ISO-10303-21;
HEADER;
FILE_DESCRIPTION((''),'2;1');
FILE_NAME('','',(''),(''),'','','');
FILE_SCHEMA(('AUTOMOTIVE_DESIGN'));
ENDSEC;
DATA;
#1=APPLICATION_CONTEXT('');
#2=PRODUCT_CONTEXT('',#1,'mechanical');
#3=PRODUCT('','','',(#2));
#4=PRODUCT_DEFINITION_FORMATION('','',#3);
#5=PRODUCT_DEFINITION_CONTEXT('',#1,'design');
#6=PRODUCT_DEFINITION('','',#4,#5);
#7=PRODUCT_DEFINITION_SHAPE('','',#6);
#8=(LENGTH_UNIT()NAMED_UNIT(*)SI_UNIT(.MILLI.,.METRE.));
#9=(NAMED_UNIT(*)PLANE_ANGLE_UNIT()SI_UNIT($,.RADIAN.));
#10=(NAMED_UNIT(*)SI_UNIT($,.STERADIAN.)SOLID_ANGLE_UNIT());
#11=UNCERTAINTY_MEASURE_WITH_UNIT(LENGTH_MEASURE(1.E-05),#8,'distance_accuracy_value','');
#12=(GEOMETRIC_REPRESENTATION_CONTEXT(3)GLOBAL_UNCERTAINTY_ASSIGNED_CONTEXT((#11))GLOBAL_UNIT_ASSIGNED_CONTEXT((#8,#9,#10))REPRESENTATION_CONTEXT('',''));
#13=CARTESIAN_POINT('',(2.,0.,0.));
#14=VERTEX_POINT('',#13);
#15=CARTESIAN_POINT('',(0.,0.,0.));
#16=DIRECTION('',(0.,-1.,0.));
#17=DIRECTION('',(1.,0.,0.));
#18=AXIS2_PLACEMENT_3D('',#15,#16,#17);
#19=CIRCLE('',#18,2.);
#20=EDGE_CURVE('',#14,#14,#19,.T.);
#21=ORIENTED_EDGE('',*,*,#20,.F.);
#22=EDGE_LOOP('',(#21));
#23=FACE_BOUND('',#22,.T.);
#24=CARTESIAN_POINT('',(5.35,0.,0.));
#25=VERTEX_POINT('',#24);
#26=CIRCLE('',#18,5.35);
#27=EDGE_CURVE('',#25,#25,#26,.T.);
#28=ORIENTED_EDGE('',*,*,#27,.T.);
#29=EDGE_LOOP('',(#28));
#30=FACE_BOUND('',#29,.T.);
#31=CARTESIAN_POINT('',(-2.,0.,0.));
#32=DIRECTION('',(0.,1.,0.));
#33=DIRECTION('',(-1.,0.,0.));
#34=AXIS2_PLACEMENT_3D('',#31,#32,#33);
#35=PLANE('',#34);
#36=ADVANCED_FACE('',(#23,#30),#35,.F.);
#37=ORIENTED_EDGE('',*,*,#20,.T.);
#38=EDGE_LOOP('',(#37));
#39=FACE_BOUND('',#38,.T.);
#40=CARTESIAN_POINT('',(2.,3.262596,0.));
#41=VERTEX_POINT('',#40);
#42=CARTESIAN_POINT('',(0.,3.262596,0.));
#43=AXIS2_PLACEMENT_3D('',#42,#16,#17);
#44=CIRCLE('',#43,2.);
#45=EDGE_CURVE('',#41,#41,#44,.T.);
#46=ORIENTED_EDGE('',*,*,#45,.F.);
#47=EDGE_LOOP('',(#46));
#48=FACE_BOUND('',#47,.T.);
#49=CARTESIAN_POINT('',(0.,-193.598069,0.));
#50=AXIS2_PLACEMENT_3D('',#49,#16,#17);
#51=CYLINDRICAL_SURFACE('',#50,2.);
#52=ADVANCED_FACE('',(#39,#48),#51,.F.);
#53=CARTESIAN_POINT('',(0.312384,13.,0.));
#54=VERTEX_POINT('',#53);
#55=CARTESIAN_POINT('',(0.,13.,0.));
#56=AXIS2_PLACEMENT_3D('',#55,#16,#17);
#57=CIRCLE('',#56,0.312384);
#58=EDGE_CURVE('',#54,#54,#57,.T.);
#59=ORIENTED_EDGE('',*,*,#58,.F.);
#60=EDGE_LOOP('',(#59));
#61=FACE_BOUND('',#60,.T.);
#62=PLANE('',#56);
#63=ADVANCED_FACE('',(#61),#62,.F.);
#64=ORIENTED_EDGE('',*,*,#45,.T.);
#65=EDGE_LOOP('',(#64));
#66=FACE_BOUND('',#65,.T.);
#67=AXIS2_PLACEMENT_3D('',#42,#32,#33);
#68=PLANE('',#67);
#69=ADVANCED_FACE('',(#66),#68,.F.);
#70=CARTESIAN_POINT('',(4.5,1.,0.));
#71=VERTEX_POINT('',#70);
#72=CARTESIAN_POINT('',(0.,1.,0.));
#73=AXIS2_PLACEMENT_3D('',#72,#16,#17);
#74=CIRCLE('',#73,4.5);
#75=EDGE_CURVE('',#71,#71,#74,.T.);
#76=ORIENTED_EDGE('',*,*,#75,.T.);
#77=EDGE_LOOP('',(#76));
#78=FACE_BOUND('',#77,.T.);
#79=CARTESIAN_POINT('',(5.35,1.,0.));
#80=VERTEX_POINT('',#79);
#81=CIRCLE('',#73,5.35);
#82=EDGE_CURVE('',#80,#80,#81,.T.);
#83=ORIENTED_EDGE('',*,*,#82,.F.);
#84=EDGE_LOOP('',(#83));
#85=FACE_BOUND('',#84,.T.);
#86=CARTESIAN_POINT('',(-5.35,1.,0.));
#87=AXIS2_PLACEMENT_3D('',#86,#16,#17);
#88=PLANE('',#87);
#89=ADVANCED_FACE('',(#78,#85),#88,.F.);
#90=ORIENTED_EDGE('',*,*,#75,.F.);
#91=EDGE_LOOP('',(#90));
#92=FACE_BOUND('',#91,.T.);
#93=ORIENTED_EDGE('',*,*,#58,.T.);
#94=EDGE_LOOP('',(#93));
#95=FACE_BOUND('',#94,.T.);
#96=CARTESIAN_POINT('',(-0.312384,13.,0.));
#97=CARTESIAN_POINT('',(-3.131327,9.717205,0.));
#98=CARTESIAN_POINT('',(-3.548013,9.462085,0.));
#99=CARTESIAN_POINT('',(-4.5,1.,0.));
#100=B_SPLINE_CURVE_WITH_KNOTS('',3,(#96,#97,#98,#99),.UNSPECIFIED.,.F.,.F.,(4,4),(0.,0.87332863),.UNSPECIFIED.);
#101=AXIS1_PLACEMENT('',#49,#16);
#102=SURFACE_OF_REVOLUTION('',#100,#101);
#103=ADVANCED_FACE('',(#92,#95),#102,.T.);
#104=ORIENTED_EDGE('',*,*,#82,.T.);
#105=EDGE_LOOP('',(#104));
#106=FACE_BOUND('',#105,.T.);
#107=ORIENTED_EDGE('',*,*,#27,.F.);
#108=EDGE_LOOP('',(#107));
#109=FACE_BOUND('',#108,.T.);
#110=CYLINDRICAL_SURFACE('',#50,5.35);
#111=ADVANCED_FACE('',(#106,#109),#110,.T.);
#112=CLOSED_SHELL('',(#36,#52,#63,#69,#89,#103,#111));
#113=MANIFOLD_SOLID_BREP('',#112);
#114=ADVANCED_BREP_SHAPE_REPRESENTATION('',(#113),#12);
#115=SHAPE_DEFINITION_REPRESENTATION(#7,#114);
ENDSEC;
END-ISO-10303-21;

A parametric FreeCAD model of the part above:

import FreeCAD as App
import Part
import Sketcher
from FreeCAD import Vector

doc = App.newDocument("Part")
body = doc.addObject("PartDesign::Body", "Body")

# Sketch on XY plane
sketch1 = body.newObject("Sketcher::SketchObject", "Sketch")
sketch1.AttachmentSupport = (doc.getObject("XY_Plane"), [""])
sketch1.MapMode = "FlatFace"
sketch1.addGeometry([
    Part.LineSegment(Vector(-2, 3.262596, 0), Vector(0, 3.262596, 0)),  # 0
    Part.LineSegment(Vector(0, 3.262596, 0), Vector(0, 13, 0)),  # 1
    Part.LineSegment(Vector(0, 13, 0), Vector(-0.312384, 13, 0)),  # 2
    Part.BSplineCurve([Vector(-4.5, 1, 0), Vector(-3.548013, 9.462085, 0), Vector(-3.131327, 9.717205, 0), Vector(-0.312384, 13, 0)], [4, 4], [0, 0.87332863], False, 3, [1, 1, 1, 1], False),  # 3
    Part.LineSegment(Vector(-4.5, 1, 0), Vector(-5.35, 1, 0)),  # 4
    Part.LineSegment(Vector(-5.35, 1, 0), Vector(-5.35, 0, 0)),  # 5
    Part.LineSegment(Vector(-5.35, 0, 0), Vector(-2, 0, 0)),  # 6
    Part.LineSegment(Vector(-2, 0, 0), Vector(-2, 3.262596, 0)),  # 7
], False)
sketch1.addConstraint([
    Sketcher.Constraint("Block", 3),
    Sketcher.Constraint("Coincident", 0, 2, 1, 1),
    Sketcher.Constraint("Coincident", 1, 2, 2, 1),
    Sketcher.Constraint("Coincident", 2, 2, 3, 2),
    Sketcher.Constraint("Coincident", 3, 1, 4, 1),
    Sketcher.Constraint("Coincident", 4, 2, 5, 1),
    Sketcher.Constraint("Coincident", 5, 2, 6, 1),
    Sketcher.Constraint("Coincident", 6, 2, 7, 1),
    Sketcher.Constraint("Coincident", 7, 2, 0, 1),
    Sketcher.Constraint("Horizontal", 0),
    Sketcher.Constraint("Vertical", 1),
    Sketcher.Constraint("Horizontal", 2),
    Sketcher.Constraint("Horizontal", 4),
    Sketcher.Constraint("Vertical", 5),
    Sketcher.Constraint("Horizontal", 6),
    Sketcher.Constraint("Vertical", 7),
    Sketcher.Constraint("PointOnObject", 0, 2, -2),
    Sketcher.Constraint("PointOnObject", 5, 2, -1),
    Sketcher.Constraint("DistanceX", 0, 1, 0, 2, 2.0),
    Sketcher.Constraint("DistanceX", 4, 2, 4, 1, 0.85),
    Sketcher.Constraint("DistanceY", 1, 1, 1, 2, 9.737404),
])
revolution = body.newObject("PartDesign::Revolution", "Revolution")
revolution.Profile = sketch1
revolution.ReferenceAxis = (sketch1, ["V_Axis"])
revolution.Angle = 360

doc.recompute()
